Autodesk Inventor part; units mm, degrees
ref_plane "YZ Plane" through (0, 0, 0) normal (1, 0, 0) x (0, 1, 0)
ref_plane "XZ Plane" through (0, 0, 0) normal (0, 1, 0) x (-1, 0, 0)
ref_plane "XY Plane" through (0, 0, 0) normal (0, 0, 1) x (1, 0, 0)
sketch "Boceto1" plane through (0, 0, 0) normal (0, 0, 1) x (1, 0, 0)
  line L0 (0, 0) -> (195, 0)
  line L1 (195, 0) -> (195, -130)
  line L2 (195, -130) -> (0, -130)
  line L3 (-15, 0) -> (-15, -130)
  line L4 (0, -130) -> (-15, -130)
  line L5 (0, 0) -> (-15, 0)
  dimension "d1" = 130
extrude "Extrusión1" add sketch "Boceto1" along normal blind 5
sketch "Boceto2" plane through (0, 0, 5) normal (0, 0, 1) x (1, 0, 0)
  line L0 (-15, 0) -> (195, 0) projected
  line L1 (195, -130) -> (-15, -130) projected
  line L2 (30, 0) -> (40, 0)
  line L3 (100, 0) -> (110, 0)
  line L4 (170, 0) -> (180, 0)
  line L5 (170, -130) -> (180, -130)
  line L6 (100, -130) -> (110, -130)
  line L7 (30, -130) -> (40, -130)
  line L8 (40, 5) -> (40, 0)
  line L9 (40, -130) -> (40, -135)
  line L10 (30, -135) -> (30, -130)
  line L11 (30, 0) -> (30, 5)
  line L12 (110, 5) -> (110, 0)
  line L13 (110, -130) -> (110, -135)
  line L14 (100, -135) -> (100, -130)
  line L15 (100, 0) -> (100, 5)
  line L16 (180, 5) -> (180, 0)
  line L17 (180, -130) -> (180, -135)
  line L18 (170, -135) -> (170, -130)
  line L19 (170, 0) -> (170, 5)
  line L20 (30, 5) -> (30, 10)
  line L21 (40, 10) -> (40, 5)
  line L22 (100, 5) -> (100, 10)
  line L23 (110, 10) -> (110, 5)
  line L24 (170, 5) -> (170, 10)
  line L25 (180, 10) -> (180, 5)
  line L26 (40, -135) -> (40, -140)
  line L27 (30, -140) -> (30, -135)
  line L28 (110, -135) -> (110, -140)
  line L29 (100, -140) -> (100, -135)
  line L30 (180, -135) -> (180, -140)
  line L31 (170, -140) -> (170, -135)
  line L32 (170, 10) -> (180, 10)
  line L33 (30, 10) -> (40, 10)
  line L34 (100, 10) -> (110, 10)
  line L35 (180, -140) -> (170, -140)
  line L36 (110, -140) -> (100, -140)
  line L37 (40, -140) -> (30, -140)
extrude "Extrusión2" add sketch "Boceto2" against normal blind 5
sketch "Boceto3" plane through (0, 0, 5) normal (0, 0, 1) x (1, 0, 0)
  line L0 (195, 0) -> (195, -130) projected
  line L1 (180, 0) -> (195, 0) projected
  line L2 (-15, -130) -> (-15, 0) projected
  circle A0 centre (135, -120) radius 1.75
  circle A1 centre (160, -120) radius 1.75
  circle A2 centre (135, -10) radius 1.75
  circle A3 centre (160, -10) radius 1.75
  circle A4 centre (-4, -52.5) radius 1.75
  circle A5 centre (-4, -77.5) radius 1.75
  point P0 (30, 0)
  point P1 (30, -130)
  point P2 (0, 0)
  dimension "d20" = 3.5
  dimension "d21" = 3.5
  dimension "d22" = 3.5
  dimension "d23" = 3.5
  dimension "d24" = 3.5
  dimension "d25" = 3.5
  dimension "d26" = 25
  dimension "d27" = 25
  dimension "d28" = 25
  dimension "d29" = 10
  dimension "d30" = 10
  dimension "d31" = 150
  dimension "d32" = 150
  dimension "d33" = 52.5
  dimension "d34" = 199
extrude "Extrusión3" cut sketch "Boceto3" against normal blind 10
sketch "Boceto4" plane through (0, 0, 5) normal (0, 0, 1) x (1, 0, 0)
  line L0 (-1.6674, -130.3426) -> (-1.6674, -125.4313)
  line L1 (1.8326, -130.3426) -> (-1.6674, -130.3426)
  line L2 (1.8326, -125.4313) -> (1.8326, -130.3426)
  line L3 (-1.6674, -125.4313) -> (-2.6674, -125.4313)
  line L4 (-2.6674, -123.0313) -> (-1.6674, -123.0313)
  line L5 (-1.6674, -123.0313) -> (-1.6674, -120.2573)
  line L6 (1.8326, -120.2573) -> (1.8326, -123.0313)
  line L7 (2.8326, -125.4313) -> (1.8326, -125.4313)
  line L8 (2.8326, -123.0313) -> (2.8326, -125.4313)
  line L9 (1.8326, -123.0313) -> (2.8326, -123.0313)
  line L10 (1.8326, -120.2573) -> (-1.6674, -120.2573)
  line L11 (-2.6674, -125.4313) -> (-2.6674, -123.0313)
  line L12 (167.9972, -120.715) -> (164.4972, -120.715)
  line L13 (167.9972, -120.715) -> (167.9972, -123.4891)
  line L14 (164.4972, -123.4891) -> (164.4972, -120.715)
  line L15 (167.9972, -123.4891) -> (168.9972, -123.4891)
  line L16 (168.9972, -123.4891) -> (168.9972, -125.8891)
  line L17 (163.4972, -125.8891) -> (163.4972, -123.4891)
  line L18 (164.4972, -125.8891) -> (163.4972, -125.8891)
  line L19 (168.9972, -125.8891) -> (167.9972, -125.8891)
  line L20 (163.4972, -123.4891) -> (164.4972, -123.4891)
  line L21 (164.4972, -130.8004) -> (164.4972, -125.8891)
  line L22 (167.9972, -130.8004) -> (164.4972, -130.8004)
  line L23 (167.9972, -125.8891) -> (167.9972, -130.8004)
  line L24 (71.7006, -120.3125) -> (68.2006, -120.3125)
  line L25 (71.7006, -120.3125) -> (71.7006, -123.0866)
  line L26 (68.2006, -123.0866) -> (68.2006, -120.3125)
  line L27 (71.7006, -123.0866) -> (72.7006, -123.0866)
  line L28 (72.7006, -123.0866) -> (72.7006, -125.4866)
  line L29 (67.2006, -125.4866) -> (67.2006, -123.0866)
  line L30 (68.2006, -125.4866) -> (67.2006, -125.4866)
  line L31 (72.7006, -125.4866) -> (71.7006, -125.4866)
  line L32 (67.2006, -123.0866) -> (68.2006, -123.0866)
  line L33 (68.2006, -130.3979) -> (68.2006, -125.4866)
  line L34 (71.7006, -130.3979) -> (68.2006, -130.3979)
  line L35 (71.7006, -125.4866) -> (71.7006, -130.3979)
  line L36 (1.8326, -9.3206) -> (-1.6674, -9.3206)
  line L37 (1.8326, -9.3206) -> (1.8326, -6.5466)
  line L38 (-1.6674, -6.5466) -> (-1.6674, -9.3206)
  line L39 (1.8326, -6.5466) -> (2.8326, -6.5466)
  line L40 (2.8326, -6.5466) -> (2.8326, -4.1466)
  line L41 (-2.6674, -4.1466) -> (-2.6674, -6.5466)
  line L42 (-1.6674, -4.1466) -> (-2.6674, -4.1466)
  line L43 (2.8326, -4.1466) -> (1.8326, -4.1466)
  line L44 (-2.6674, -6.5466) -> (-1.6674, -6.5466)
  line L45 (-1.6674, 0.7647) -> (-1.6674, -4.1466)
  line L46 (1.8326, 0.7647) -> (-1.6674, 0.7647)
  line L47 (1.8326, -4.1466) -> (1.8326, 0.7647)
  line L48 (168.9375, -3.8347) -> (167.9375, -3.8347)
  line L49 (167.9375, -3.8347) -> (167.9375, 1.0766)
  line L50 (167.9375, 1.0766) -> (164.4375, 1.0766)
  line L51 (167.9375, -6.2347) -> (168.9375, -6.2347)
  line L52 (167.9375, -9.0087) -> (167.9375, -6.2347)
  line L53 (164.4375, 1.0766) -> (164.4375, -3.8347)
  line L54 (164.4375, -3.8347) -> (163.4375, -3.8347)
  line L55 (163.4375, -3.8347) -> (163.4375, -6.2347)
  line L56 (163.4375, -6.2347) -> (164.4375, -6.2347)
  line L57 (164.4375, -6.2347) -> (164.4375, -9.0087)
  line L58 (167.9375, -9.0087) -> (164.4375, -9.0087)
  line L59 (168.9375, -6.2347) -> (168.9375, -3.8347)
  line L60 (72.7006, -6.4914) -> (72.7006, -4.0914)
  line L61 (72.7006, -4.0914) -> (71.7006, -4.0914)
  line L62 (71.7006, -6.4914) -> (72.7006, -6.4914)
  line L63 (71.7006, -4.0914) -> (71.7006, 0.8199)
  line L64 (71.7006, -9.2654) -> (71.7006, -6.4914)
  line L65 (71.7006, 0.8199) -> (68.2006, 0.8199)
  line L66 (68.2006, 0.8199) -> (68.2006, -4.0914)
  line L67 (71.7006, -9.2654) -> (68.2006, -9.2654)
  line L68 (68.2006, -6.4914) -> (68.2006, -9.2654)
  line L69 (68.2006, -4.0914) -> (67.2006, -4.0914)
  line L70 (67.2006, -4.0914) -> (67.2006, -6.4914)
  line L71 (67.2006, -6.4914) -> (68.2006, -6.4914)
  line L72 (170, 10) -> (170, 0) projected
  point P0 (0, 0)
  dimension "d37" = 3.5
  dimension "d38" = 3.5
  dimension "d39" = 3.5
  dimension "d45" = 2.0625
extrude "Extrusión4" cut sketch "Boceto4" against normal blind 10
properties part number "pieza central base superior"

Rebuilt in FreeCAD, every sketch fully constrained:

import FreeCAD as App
import Part
import Sketcher
Q = App.Units.Quantity


def add_polygon(sketch, points):
    """Adds a closed chain of lines whose ends are joined by coincident constraints."""
    first, n = sketch.GeometryCount, len(points)
    for a, b in zip(points, points[1:] + points[:1]):
        sketch.addGeometry(Part.LineSegment(App.Vector(*a, 0), App.Vector(*b, 0)), False)
    for i in range(n):
        sketch.addConstraint(Sketcher.Constraint("Coincident", first + i, 2, first + (i + 1) % n, 1))

doc = App.newDocument("Part")
params = doc.addObject("Spreadsheet::Sheet", "Params")
for row, (alias, value) in enumerate([
    ("sketch1_height", "130 mm"),
    ("sketch1_width", "210 mm"),
    ("pad1_length", "5 mm"),
    ("sketch2_width", "10 mm"),
    ("pad2_length", "5 mm"),
    ("sketch3_diameter", "3.5 mm"),
    ("pocket1_length", "10 mm"),
    ("sketch4_width", "3.5 mm"),
    ("sketch4_width2", "1 mm"),
    ("sketch4_height", "2.4 mm"),
    ("pocket2_length", "10 mm"),
], start=1):
    params.set(f"A{row}", alias)
    params.set(f"B{row}", "=" + value)
    params.setAlias(f"B{row}", alias)

body = doc.addObject("PartDesign::Body", "Body")

sketch1 = body.newObject("Sketcher::SketchObject", "Sketch")
sketch1.AttachmentSupport = (doc.getObject("XY_Plane"), [""])
sketch1.MapMode = "FlatFace"
add_polygon(sketch1, [(195, 0), (-15, 0), (-15, -130), (195, -130)])
sketch1.addConstraint([
    Sketcher.Constraint("Horizontal", 0),
    Sketcher.Constraint("Vertical", 1),
    Sketcher.Constraint("Horizontal", 2),
    Sketcher.Constraint("Vertical", 3),
    Sketcher.Constraint("PointOnObject", 0, 2, -1),
    Sketcher.Constraint("DistanceY", 1, 2, 1, 1, Q("130 mm")),
    Sketcher.Constraint("DistanceX", 0, 2, 0, 1, Q("210 mm")),
    Sketcher.Constraint("DistanceX", 0, 2, -1, 1, Q("15 mm")),
])
sketch1.setExpression("Constraints[9]", "Params.sketch1_height")
sketch1.setExpression("Constraints[10]", "Params.sketch1_width")
pad1 = body.newObject("PartDesign::Pad", "Pad")
pad1.Profile = sketch1
pad1.setExpression("Length", "Params.pad1_length")

sketch2 = body.newObject("Sketcher::SketchObject", "Sketch001")
sketch2.AttachmentSupport = (doc.getObject("XY_Plane"), [""])
sketch2.MapMode = "FlatFace"
sketch2.AttachmentOffset = App.Placement(App.Vector(0, 0, 5), App.Rotation())
add_polygon(sketch2, [(30, 10), (30, 0), (40, 0), (40, 10)])
add_polygon(sketch2, [(170, 10), (170, 0), (180, 0), (180, 10)])
add_polygon(sketch2, [(100, 10), (100, 0), (110, 0), (110, 10)])
add_polygon(sketch2, [(180, -140), (180, -130), (170, -130), (170, -140)])
add_polygon(sketch2, [(40, -140), (40, -130), (30, -130), (30, -140)])
add_polygon(sketch2, [(110, -140), (110, -130), (100, -130), (100, -140)])
sketch2.addConstraint([
    Sketcher.Constraint("Vertical", 0),
    Sketcher.Constraint("Horizontal", 1),
    Sketcher.Constraint("Vertical", 2),
    Sketcher.Constraint("Horizontal", 3),
    Sketcher.Constraint("Vertical", 4),
    Sketcher.Constraint("Horizontal", 5),
    Sketcher.Constraint("Vertical", 6),
    Sketcher.Constraint("Horizontal", 7),
    Sketcher.Constraint("Vertical", 8),
    Sketcher.Constraint("Horizontal", 9),
    Sketcher.Constraint("Vertical", 10),
    Sketcher.Constraint("Horizontal", 11),
    Sketcher.Constraint("Vertical", 12),
    Sketcher.Constraint("Horizontal", 13),
    Sketcher.Constraint("Vertical", 14),
    Sketcher.Constraint("Horizontal", 15),
    Sketcher.Constraint("Vertical", 16),
    Sketcher.Constraint("Horizontal", 17),
    Sketcher.Constraint("Vertical", 18),
    Sketcher.Constraint("Horizontal", 19),
    Sketcher.Constraint("Vertical", 20),
    Sketcher.Constraint("Horizontal", 21),
    Sketcher.Constraint("Vertical", 22),
    Sketcher.Constraint("Horizontal", 23),
    Sketcher.Constraint("PointOnObject", 0, 2, -1),
    Sketcher.Constraint("PointOnObject", 4, 2, -1),
    Sketcher.Constraint("PointOnObject", 8, 2, -1),
    Sketcher.Constraint("Horizontal", 3, 2, 6, 2),
    Sketcher.Constraint("Horizontal", 7, 2, 10, 2),
    Sketcher.Constraint("Horizontal", 13, 2, 16, 2),
    Sketcher.Constraint("Horizontal", 15, 2, 18, 2),
    Sketcher.Constraint("Horizontal", 17, 2, 20, 2),
    Sketcher.Constraint("Horizontal", 19, 2, 22, 2),
    Sketcher.Constraint("Vertical", 6, 2, 12, 2),
    Sketcher.Constraint("Vertical", 7, 2, 13, 2),
    Sketcher.Constraint("Vertical", 2, 2, 16, 2),
    Sketcher.Constraint("Vertical", 3, 2, 17, 2),
    Sketcher.Constraint("Vertical", 10, 2, 20, 2),
    Sketcher.Constraint("Vertical", 11, 2, 21, 2),
    Sketcher.Constraint("Equal", 3, 5),
    Sketcher.Constraint("Equal", 7, 9),
    Sketcher.Constraint("Equal", 23, 0),
    Sketcher.Constraint("Equal", 10, 12),
    Sketcher.Constraint("DistanceX", 1, 1, 1, 2, Q("10 mm")),
    Sketcher.Constraint("DistanceX", -1, 1, 0, 2, Q("30 mm")),
    Sketcher.Constraint("DistanceX", -1, 1, 4, 2, Q("170 mm")),
    Sketcher.Constraint("DistanceX", -1, 1, 8, 2, Q("100 mm")),
    Sketcher.Constraint("DistanceY", 12, 2, -1, 1, Q("130 mm")),
])
sketch2.setExpression("Constraints[67]", "Params.sketch2_width")
pad2 = body.newObject("PartDesign::Pad", "Pad001")
pad2.Profile = sketch2
pad2.setExpression("Length", "Params.pad2_length")
pad2.Reversed = True

sketch3 = body.newObject("Sketcher::SketchObject", "Sketch002")
sketch3.AttachmentSupport = (doc.getObject("XY_Plane"), [""])
sketch3.MapMode = "FlatFace"
sketch3.AttachmentOffset = App.Placement(App.Vector(0, 0, 5), App.Rotation())
sketch3.addGeometry([
    Part.Circle(App.Vector(135, -120, 0), App.Vector(0, 0, 1), 1.8),
    Part.Circle(App.Vector(160, -120, 0), App.Vector(0, 0, 1), 1.8),
    Part.Circle(App.Vector(135, -10, 0), App.Vector(0, 0, 1), 1.8),
    Part.Circle(App.Vector(160, -10, 0), App.Vector(0, 0, 1), 1.8),
    Part.Circle(App.Vector(-4, -52.5, 0), App.Vector(0, 0, 1), 1.8),
    Part.Circle(App.Vector(-4, -77.5, 0), App.Vector(0, 0, 1), 1.8),
], False)
sketch3.addConstraint([
    Sketcher.Constraint("Equal", 0, 1),
    Sketcher.Constraint("Equal", 1, 2),
    Sketcher.Constraint("Equal", 2, 3),
    Sketcher.Constraint("Equal", 3, 4),
    Sketcher.Constraint("Equal", 4, 5),
    Sketcher.Constraint("Horizontal", 0, 3, 1, 3),
    Sketcher.Constraint("Horizontal", 2, 3, 3, 3),
    Sketcher.Constraint("Vertical", 0, 3, 2, 3),
    Sketcher.Constraint("Vertical", 1, 3, 3, 3),
    Sketcher.Constraint("Vertical", 4, 3, 5, 3),
    Sketcher.Constraint("Diameter", 0, Q("3.5 mm")),
    Sketcher.Constraint("DistanceY", 2, 3, -1, 1, Q("10 mm")),
    Sketcher.Constraint("DistanceX", 0, 3, 1, 3, Q("25 mm")),
    Sketcher.Constraint("DistanceY", 5, 3, 4, 3, Q("25 mm")),
    Sketcher.Constraint("DistanceY", 4, 3, -1, 1, Q("52.5 mm")),
    Sketcher.Constraint("DistanceX", -1, 1, 0, 3, Q("135 mm")),
    Sketcher.Constraint("DistanceY", 0, 3, -1, 1, Q("120 mm")),
    Sketcher.Constraint("DistanceX", 4, 3, -1, 1, Q("4 mm")),
])
sketch3.setExpression("Constraints[10]", "Params.sketch3_diameter")
pocket1 = body.newObject("PartDesign::Pocket", "Pocket")
pocket1.Profile = sketch3
pocket1.setExpression("Length", "Params.pocket1_length")

sketch4 = body.newObject("Sketcher::SketchObject", "Sketch003")
sketch4.AttachmentSupport = (doc.getObject("XY_Plane"), [""])
sketch4.MapMode = "FlatFace"
sketch4.AttachmentOffset = App.Placement(App.Vector(0, 0, 5), App.Rotation())
add_polygon(sketch4, [(-1.7, -125.4), (-1.7, -130.3), (1.8, -130.3), (1.8, -125.4), (2.8, -125.4), (2.8, -123), (1.8, -123), (1.8, -120.3), (-1.7, -120.3), (-1.7, -123), (-2.7, -123), (-2.7, -125.4)])
add_polygon(sketch4, [(168, -123.5), (168, -120.7), (164.5, -120.7), (164.5, -123.5), (163.5, -123.5), (163.5, -125.9), (164.5, -125.9), (164.5, -130.8), (168, -130.8), (168, -125.9), (169, -125.9), (169, -123.5)])
add_polygon(sketch4, [(71.7, -123.1), (71.7, -120.3), (68.2, -120.3), (68.2, -123.1), (67.2, -123.1), (67.2, -125.5), (68.2, -125.5), (68.2, -130.4), (71.7, -130.4), (71.7, -125.5), (72.7, -125.5), (72.7, -123.1)])
add_polygon(sketch4, [(-1.7, -9.3), (1.8, -9.3), (1.8, -6.5), (2.8, -6.5), (2.8, -4.1), (1.8, -4.1), (1.8, 0.8), (-1.7, 0.8), (-1.7, -4.1), (-2.7, -4.1), (-2.7, -6.5), (-1.7, -6.5)])
add_polygon(sketch4, [(168.9, -6.2), (168.9, -3.8), (167.9, -3.8), (167.9, 1.1), (164.4, 1.1), (164.4, -3.8), (163.4, -3.8), (163.4, -6.2), (164.4, -6.2), (164.4, -9), (167.9, -9), (167.9, -6.2)])
add_polygon(sketch4, [(71.7, -6.5), (72.7, -6.5), (72.7, -4.1), (71.7, -4.1), (71.7, 0.8), (68.2, 0.8), (68.2, -4.1), (67.2, -4.1), (67.2, -6.5), (68.2, -6.5), (68.2, -9.3), (71.7, -9.3)])
sketch4.addConstraint([
    Sketcher.Constraint("Vertical", 0),
    Sketcher.Constraint("Horizontal", 1),
    Sketcher.Constraint("Vertical", 2),
    Sketcher.Constraint("Horizontal", 3),
    Sketcher.Constraint("Vertical", 4),
    Sketcher.Constraint("Horizontal", 5),
    Sketcher.Constraint("Vertical", 6),
    Sketcher.Constraint("Horizontal", 7),
    Sketcher.Constraint("Vertical", 8),
    Sketcher.Constraint("Horizontal", 9),
    Sketcher.Constraint("Vertical", 10),
    Sketcher.Constraint("Horizontal", 11),
    Sketcher.Constraint("Vertical", 12),
    Sketcher.Constraint("Horizontal", 13),
    Sketcher.Constraint("Vertical", 14),
    Sketcher.Constraint("Horizontal", 15),
    Sketcher.Constraint("Vertical", 16),
    Sketcher.Constraint("Horizontal", 17),
    Sketcher.Constraint("Vertical", 18),
    Sketcher.Constraint("Horizontal", 19),
    Sketcher.Constraint("Vertical", 20),
    Sketcher.Constraint("Horizontal", 21),
    Sketcher.Constraint("Vertical", 22),
    Sketcher.Constraint("Horizontal", 23),
    Sketcher.Constraint("Vertical", 24),
    Sketcher.Constraint("Horizontal", 25),
    Sketcher.Constraint("Vertical", 26),
    Sketcher.Constraint("Horizontal", 27),
    Sketcher.Constraint("Vertical", 28),
    Sketcher.Constraint("Horizontal", 29),
    Sketcher.Constraint("Vertical", 30),
    Sketcher.Constraint("Horizontal", 31),
    Sketcher.Constraint("Vertical", 32),
    Sketcher.Constraint("Horizontal", 33),
    Sketcher.Constraint("Vertical", 34),
    Sketcher.Constraint("Horizontal", 35),
    Sketcher.Constraint("Horizontal", 36),
    Sketcher.Constraint("Vertical", 37),
    Sketcher.Constraint("Horizontal", 38),
    Sketcher.Constraint("Vertical", 39),
    Sketcher.Constraint("Horizontal", 40),
    Sketcher.Constraint("Vertical", 41),
    Sketcher.Constraint("Horizontal", 42),
    Sketcher.Constraint("Vertical", 43),
    Sketcher.Constraint("Horizontal", 44),
    Sketcher.Constraint("Vertical", 45),
    Sketcher.Constraint("Horizontal", 46),
    Sketcher.Constraint("Vertical", 47),
    Sketcher.Constraint("Vertical", 48),
    Sketcher.Constraint("Horizontal", 49),
    Sketcher.Constraint("Vertical", 50),
    Sketcher.Constraint("Horizontal", 51),
    Sketcher.Constraint("Vertical", 52),
    Sketcher.Constraint("Horizontal", 53),
    Sketcher.Constraint("Vertical", 54),
    Sketcher.Constraint("Horizontal", 55),
    Sketcher.Constraint("Vertical", 56),
    Sketcher.Constraint("Horizontal", 57),
    Sketcher.Constraint("Vertical", 58),
    Sketcher.Constraint("Horizontal", 59),
    Sketcher.Constraint("Horizontal", 60),
    Sketcher.Constraint("Vertical", 61),
    Sketcher.Constraint("Horizontal", 62),
    Sketcher.Constraint("Vertical", 63),
    Sketcher.Constraint("Horizontal", 64),
    Sketcher.Constraint("Vertical", 65),
    Sketcher.Constraint("Horizontal", 66),
    Sketcher.Constraint("Vertical", 67),
    Sketcher.Constraint("Horizontal", 68),
    Sketcher.Constraint("Vertical", 69),
    Sketcher.Constraint("Horizontal", 70),
    Sketcher.Constraint("Vertical", 71),
    Sketcher.Constraint("Horizontal", 5, 2, 8, 2),
    Sketcher.Constraint("Horizontal", 3, 2, 10, 2),
    Sketcher.Constraint("Horizontal", 17, 2, 20, 2),
    Sketcher.Constraint("Horizontal", 15, 2, 22, 2),
    Sketcher.Constraint("Horizontal", 29, 2, 32, 2),
    Sketcher.Constraint("Horizontal", 27, 2, 34, 2),
    Sketcher.Constraint("Horizontal", 40, 2, 43, 2),
    Sketcher.Constraint("Horizontal", 38, 2, 45, 2),
    Sketcher.Constraint("Horizontal", 49, 2, 52, 2),
    Sketcher.Constraint("Horizontal", 55, 2, 58, 2),
    Sketcher.Constraint("Horizontal", 62, 2, 65, 2),
    Sketcher.Constraint("Horizontal", 60, 2, 67, 2),
    Sketcher.Constraint("Vertical", 2, 2, 5, 2),
    Sketcher.Constraint("Vertical", 0, 2, 7, 2),
    Sketcher.Constraint("Vertical", 14, 2, 17, 2),
    Sketcher.Constraint("Vertical", 12, 2, 19, 2),
    Sketcher.Constraint("Vertical", 26, 2, 29, 2),
    Sketcher.Constraint("Vertical", 24, 2, 31, 2),
    Sketcher.Constraint("Vertical", 6, 2, 36, 2),
    Sketcher.Constraint("Vertical", 4, 2, 38, 2),
    Sketcher.Constraint("Vertical", 37, 2, 40, 2),
    Sketcher.Constraint("Vertical", 11, 2, 42, 2),
    Sketcher.Constraint("Vertical", 10, 2, 44, 2),
    Sketcher.Constraint("Vertical", 43, 2, 46, 2),
    Sketcher.Constraint("Vertical", 52, 2, 55, 2),
    Sketcher.Constraint("Vertical", 50, 2, 57, 2),
    Sketcher.Constraint("Vertical", 34, 2, 60, 2),
    Sketcher.Constraint("Vertical", 35, 2, 62, 2),
    Sketcher.Constraint("Vertical", 30, 2, 64, 2),
    Sketcher.Constraint("Vertical", 28, 2, 66, 2),
    Sketcher.Constraint("Vertical", 65, 2, 68, 2),
    Sketcher.Constraint("Vertical", 63, 2, 70, 2),
    Sketcher.Constraint("Equal", 5, 9),
    Sketcher.Constraint("Equal", 7, 13),
    Sketcher.Constraint("Equal", 11, 15),
    Sketcher.Constraint("Equal", 17, 21),
    Sketcher.Constraint("Equal", 19, 25),
    Sketcher.Constraint("Equal", 23, 27),
    Sketcher.Constraint("Equal", 29, 33),
    Sketcher.Constraint("Equal", 46, 49),
    Sketcher.Constraint("Equal", 42, 51),
    Sketcher.Constraint("Equal", 49, 53),
    Sketcher.Constraint("Equal", 8, 12),
    Sketcher.Constraint("Equal", 10, 16),
    Sketcher.Constraint("Equal", 2, 18),
    Sketcher.Constraint("Equal", 14, 24),
    Sketcher.Constraint("Equal", 22, 28),
    Sketcher.Constraint("Equal", 20, 30),
    Sketcher.Constraint("Equal", 26, 37),
    Sketcher.Constraint("Equal", 34, 39),
    Sketcher.Constraint("Equal", 32, 41),
    Sketcher.Constraint("Equal", 45, 48),
    Sketcher.Constraint("Equal", 43, 50),
    Sketcher.Constraint("Equal", 47, 56),
    Sketcher.Constraint("Equal", 54, 61),
    Sketcher.Constraint("Equal", 52, 63),
    Sketcher.Constraint("Equal", 58, 69),
    Sketcher.Constraint("DistanceX", 1, 1, 1, 2, Q("3.5 mm")),
    Sketcher.Constraint("DistanceX", 3, 1, 3, 2, Q("1 mm")),
    Sketcher.Constraint("DistanceY", 4, 1, 4, 2, Q("2.4 mm")),
    Sketcher.Constraint("DistanceY", 6, 1, 6, 2, Q("2.774 mm")),
    Sketcher.Constraint("DistanceY", -1, 1, 63, 2, Q("0.82 mm")),
    Sketcher.Constraint("DistanceY", 0, 2, 0, 1, Q("4.9113 mm")),
    Sketcher.Constraint("DistanceY", 12, 2, -1, 1, Q("120.715 mm")),
    Sketcher.Constraint("DistanceY", 30, 2, -1, 1, Q("130.398 mm")),
    Sketcher.Constraint("DistanceX", 0, 2, -1, 1, Q("1.6674 mm")),
    Sketcher.Constraint("DistanceY", 0, 2, -1, 1, Q("130.3426 mm")),
    Sketcher.Constraint("DistanceX", -1, 1, 12, 2, Q("167.9972 mm")),
    Sketcher.Constraint("DistanceX", -1, 1, 24, 2, Q("71.7006 mm")),
    Sketcher.Constraint("DistanceY", 36, 2, -1, 1, Q("9.3206 mm")),
    Sketcher.Constraint("DistanceX", -1, 1, 48, 2, Q("168.9375 mm")),
    Sketcher.Constraint("DistanceY", 48, 2, -1, 1, Q("3.8347 mm")),
])
sketch4.setExpression("Constraints[201]", "Params.sketch4_width")
sketch4.setExpression("Constraints[202]", "Params.sketch4_width2")
sketch4.setExpression("Constraints[203]", "Params.sketch4_height")
pocket2 = body.newObject("PartDesign::Pocket", "Pocket001")
pocket2.Profile = sketch4
pocket2.setExpression("Length", "Params.pocket2_length")

doc.recompute()
